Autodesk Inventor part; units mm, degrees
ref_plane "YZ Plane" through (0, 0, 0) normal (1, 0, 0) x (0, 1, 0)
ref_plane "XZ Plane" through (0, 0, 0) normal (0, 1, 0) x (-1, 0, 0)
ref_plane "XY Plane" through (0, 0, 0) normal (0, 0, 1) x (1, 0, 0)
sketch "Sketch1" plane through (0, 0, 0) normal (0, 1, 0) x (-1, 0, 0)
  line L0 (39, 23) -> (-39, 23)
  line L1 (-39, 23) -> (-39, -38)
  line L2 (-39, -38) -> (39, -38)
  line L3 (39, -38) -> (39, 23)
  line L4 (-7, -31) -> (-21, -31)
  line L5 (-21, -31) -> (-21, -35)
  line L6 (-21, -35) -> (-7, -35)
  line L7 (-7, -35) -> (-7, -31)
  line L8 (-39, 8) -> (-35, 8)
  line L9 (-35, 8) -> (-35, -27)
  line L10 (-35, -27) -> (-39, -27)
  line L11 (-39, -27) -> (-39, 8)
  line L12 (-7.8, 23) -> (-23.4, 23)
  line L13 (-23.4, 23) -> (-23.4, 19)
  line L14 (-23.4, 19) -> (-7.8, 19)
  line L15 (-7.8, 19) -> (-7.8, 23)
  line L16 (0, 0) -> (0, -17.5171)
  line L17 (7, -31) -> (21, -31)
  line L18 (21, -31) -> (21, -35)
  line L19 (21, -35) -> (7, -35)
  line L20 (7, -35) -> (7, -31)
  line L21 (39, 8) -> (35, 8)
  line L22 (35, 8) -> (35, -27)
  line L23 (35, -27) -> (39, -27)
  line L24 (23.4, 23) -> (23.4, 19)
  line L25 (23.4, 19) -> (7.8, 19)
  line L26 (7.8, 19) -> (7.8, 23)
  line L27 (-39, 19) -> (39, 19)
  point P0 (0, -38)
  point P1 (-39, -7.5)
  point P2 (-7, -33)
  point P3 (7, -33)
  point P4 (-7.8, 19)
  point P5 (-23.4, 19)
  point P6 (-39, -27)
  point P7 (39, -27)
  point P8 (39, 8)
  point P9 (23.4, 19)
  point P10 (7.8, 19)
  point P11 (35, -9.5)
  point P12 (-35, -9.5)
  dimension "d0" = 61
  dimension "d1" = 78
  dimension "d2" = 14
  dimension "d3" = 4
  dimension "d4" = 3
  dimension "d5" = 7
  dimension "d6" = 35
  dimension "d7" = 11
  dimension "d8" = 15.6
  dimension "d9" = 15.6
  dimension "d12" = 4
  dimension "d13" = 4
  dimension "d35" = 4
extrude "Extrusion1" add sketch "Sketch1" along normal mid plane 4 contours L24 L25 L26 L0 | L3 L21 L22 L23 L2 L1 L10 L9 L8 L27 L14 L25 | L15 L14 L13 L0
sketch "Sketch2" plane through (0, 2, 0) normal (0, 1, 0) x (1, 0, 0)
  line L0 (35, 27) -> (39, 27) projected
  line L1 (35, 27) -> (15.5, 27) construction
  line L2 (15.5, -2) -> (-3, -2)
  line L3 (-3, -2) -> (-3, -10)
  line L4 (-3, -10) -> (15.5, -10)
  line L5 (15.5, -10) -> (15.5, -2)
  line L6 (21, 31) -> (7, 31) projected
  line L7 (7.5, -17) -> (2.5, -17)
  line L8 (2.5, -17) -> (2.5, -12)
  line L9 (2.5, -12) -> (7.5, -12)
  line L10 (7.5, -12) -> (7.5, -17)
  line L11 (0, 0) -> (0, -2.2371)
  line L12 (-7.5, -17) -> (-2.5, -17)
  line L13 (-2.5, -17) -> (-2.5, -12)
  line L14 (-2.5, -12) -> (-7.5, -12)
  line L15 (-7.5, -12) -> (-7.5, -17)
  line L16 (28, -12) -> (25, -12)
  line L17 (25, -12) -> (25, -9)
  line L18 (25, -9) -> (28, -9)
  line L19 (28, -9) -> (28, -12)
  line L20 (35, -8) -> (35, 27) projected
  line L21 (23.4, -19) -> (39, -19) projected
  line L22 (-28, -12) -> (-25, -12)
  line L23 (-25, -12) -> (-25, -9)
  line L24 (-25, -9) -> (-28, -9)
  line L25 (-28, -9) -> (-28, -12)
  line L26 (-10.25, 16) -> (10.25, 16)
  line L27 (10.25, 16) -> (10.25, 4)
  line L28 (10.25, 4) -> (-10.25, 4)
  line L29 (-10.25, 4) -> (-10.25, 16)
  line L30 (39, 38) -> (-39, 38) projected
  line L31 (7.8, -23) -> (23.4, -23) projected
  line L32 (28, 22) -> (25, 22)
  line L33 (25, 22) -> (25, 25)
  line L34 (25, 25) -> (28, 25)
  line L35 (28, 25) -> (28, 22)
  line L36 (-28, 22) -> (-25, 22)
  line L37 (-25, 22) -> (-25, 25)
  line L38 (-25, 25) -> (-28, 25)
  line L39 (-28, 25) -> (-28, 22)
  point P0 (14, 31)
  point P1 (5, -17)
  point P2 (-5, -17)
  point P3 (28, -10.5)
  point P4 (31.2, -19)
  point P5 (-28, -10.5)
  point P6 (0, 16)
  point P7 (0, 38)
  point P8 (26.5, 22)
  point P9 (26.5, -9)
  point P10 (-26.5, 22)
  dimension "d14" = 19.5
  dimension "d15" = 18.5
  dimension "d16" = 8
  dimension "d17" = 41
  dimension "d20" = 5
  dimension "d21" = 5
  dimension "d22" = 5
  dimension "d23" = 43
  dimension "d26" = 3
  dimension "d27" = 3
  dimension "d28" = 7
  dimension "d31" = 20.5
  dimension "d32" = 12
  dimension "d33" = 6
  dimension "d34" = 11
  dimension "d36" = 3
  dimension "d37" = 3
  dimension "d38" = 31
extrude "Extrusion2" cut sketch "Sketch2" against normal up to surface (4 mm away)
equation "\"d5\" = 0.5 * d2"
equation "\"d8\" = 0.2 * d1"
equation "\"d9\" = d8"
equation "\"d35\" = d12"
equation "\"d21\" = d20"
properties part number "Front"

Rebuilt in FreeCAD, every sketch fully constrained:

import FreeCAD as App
import Part
import Sketcher

V = App.Vector
Q = App.Units.Quantity

doc = App.newDocument("Part")
body = doc.addObject("PartDesign::Body", "Body")

sketch1 = body.newObject("Sketcher::SketchObject", "Sketch")
sketch1.AttachmentSupport = (doc.getObject("XZ_Plane"), [""])
sketch1.MapMode = "FlatFace"
sketch1.addGeometry([
    Part.LineSegment(V(-23.4, 19, 0), V(-23.4, 23, 0)),
    Part.LineSegment(V(-23.4, 23, 0), V(-7.8, 23, 0)),
    Part.LineSegment(V(-7.8, 23, 0), V(-7.8, 19, 0)),
    Part.LineSegment(V(-7.8, 19, 0), V(7.8, 19, 0)),
    Part.LineSegment(V(7.8, 19, 0), V(7.8, 23, 0)),
    Part.LineSegment(V(7.8, 23, 0), V(23.4, 23, 0)),
    Part.LineSegment(V(23.4, 23, 0), V(23.4, 19, 0)),
    Part.LineSegment(V(23.4, 19, 0), V(39, 19, 0)),
    Part.LineSegment(V(39, 19, 0), V(39, 8, 0)),
    Part.LineSegment(V(39, 8, 0), V(35, 8, 0)),
    Part.LineSegment(V(35, 8, 0), V(35, -27, 0)),
    Part.LineSegment(V(35, -27, 0), V(39, -27, 0)),
    Part.LineSegment(V(39, -27, 0), V(39, -38, 0)),
    Part.LineSegment(V(39, -38, 0), V(-39, -38, 0)),
    Part.LineSegment(V(-39, -38, 0), V(-39, -27, 0)),
    Part.LineSegment(V(-39, -27, 0), V(-35, -27, 0)),
    Part.LineSegment(V(-35, -27, 0), V(-35, 8, 0)),
    Part.LineSegment(V(-35, 8, 0), V(-39, 8, 0)),
    Part.LineSegment(V(-39, 8, 0), V(-39, 19, 0)),
    Part.LineSegment(V(-39, 19, 0), V(-23.4, 19, 0)),
    Part.LineSegment(V(-7, -31, 0), V(-21, -31, 0)),
    Part.LineSegment(V(-21, -31, 0), V(-21, -35, 0)),
    Part.LineSegment(V(-21, -35, 0), V(-7, -35, 0)),
    Part.LineSegment(V(-7, -35, 0), V(-7, -31, 0)),
    Part.LineSegment(V(21, -31, 0), V(7, -31, 0)),
    Part.LineSegment(V(7, -31, 0), V(7, -35, 0)),
    Part.LineSegment(V(7, -35, 0), V(21, -35, 0)),
    Part.LineSegment(V(21, -35, 0), V(21, -31, 0)),
], False)
sketch1.addConstraint([
    Sketcher.Constraint("Coincident", 0, 2, 1, 1),
    Sketcher.Constraint("Coincident", 1, 2, 2, 1),
    Sketcher.Constraint("Coincident", 2, 2, 3, 1),
    Sketcher.Constraint("Coincident", 3, 2, 4, 1),
    Sketcher.Constraint("Coincident", 4, 2, 5, 1),
    Sketcher.Constraint("Coincident", 5, 2, 6, 1),
    Sketcher.Constraint("Coincident", 6, 2, 7, 1),
    Sketcher.Constraint("Coincident", 7, 2, 8, 1),
    Sketcher.Constraint("Coincident", 8, 2, 9, 1),
    Sketcher.Constraint("Coincident", 9, 2, 10, 1),
    Sketcher.Constraint("Coincident", 10, 2, 11, 1),
    Sketcher.Constraint("Coincident", 11, 2, 12, 1),
    Sketcher.Constraint("Coincident", 12, 2, 13, 1),
    Sketcher.Constraint("Coincident", 13, 2, 14, 1),
    Sketcher.Constraint("Coincident", 14, 2, 15, 1),
    Sketcher.Constraint("Coincident", 15, 2, 16, 1),
    Sketcher.Constraint("Coincident", 16, 2, 17, 1),
    Sketcher.Constraint("Coincident", 17, 2, 18, 1),
    Sketcher.Constraint("Coincident", 18, 2, 19, 1),
    Sketcher.Constraint("Coincident", 19, 2, 0, 1),
    Sketcher.Constraint("Coincident", 20, 2, 21, 1),
    Sketcher.Constraint("Coincident", 21, 2, 22, 1),
    Sketcher.Constraint("Coincident", 22, 2, 23, 1),
    Sketcher.Constraint("Coincident", 23, 2, 20, 1),
    Sketcher.Constraint("Coincident", 24, 2, 25, 1),
    Sketcher.Constraint("Coincident", 25, 2, 26, 1),
    Sketcher.Constraint("Coincident", 26, 2, 27, 1),
    Sketcher.Constraint("Coincident", 27, 2, 24, 1),
    Sketcher.Constraint("Vertical", 0),
    Sketcher.Constraint("Horizontal", 1),
    Sketcher.Constraint("Vertical", 2),
    Sketcher.Constraint("Horizontal", 3),
    Sketcher.Constraint("Vertical", 4),
    Sketcher.Constraint("Horizontal", 5),
    Sketcher.Constraint("Vertical", 6),
    Sketcher.Constraint("Horizontal", 7),
    Sketcher.Constraint("Vertical", 8),
    Sketcher.Constraint("Horizontal", 9),
    Sketcher.Constraint("Vertical", 10),
    Sketcher.Constraint("Horizontal", 11),
    Sketcher.Constraint("Vertical", 12),
    Sketcher.Constraint("Horizontal", 13),
    Sketcher.Constraint("Vertical", 14),
    Sketcher.Constraint("Horizontal", 15),
    Sketcher.Constraint("Vertical", 16),
    Sketcher.Constraint("Horizontal", 17),
    Sketcher.Constraint("Vertical", 18),
    Sketcher.Constraint("Horizontal", 19),
    Sketcher.Constraint("Horizontal", 20),
    Sketcher.Constraint("Vertical", 21),
    Sketcher.Constraint("Horizontal", 22),
    Sketcher.Constraint("Vertical", 23),
    Sketcher.Constraint("Horizontal", 24),
    Sketcher.Constraint("Vertical", 25),
    Sketcher.Constraint("Horizontal", 26),
    Sketcher.Constraint("Vertical", 27),
    Sketcher.Constraint("Symmetric", 1, 2, 4, 2, -2),
    Sketcher.Constraint("Symmetric", 11, 2, 14, 2, -2),
    Sketcher.Constraint("Symmetric", 9, 2, 16, 2, -2),
    Sketcher.Constraint("Symmetric", 7, 2, 18, 2, -2),
    Sketcher.Constraint("Symmetric", 23, 2, 24, 2, -2),
    Sketcher.Constraint("Symmetric", 21, 2, 26, 2, -2),
    Sketcher.Constraint("Horizontal", 3, 2, 6, 2),
    Sketcher.Constraint("Vertical", 8, 2, 11, 2),
    Sketcher.Constraint("Equal", 1, 3),
    Sketcher.Constraint("Equal", 3, 5),
    Sketcher.Constraint("Equal", 5, 7),
    Sketcher.Constraint("Equal", 17, 0),
    Sketcher.Constraint("Equal", 8, 12),
    Sketcher.Constraint("Equal", 6, 21),
    Sketcher.Constraint("DistanceX", 9, 2, 9, 1, Q("4 mm")),
    Sketcher.Constraint("DistanceX", 13, 2, 13, 1, Q("78 mm")),
    Sketcher.Constraint("DistanceX", 20, 2, 20, 1, Q("14 mm")),
    Sketcher.Constraint("DistanceY", 8, 2, 8, 1, Q("11 mm")),
    Sketcher.Constraint("DistanceY", 10, 2, 10, 1, Q("35 mm")),
    Sketcher.Constraint("DistanceY", 21, 2, -1, 1, Q("35 mm")),
    Sketcher.Constraint("DistanceX", 22, 2, -1, 1, Q("7 mm")),
    Sketcher.Constraint("DistanceY", 20, 2, 15, 2, Q("4 mm")),
])
pad1 = body.newObject("PartDesign::Pad", "Pad")
pad1.Profile = sketch1
pad1.Length = 4
pad1.Midplane = True

sketch2 = body.newObject("Sketcher::SketchObject", "Sketch001")
sketch2.AttachmentSupport = (doc.getObject("XZ_Plane"), [""])
sketch2.MapMode = "FlatFace"
sketch2.AttachmentOffset = App.Placement(V(0, 0, -2), App.Rotation())
sketch2.addGeometry([
    Part.LineSegment(V(15.5, 10, 0), V(15.5, 2, 0)),
    Part.LineSegment(V(15.5, 2, 0), V(-3, 2, 0)),
    Part.LineSegment(V(-3, 2, 0), V(-3, 10, 0)),
    Part.LineSegment(V(-3, 10, 0), V(15.5, 10, 0)),
    Part.LineSegment(V(2.5, 17, 0), V(7.5, 17, 0)),
    Part.LineSegment(V(7.5, 17, 0), V(7.5, 12, 0)),
    Part.LineSegment(V(7.5, 12, 0), V(2.5, 12, 0)),
    Part.LineSegment(V(2.5, 12, 0), V(2.5, 17, 0)),
    Part.LineSegment(V(-7.5, 12, 0), V(-7.5, 17, 0)),
    Part.LineSegment(V(-7.5, 17, 0), V(-2.5, 17, 0)),
    Part.LineSegment(V(-2.5, 17, 0), V(-2.5, 12, 0)),
    Part.LineSegment(V(-2.5, 12, 0), V(-7.5, 12, 0)),
    Part.LineSegment(V(25, 12, 0), V(28, 12, 0)),
    Part.LineSegment(V(28, 12, 0), V(28, 9, 0)),
    Part.LineSegment(V(28, 9, 0), V(25, 9, 0)),
    Part.LineSegment(V(25, 9, 0), V(25, 12, 0)),
    Part.LineSegment(V(-28, 9, 0), V(-28, 12, 0)),
    Part.LineSegment(V(-28, 12, 0), V(-25, 12, 0)),
    Part.LineSegment(V(-25, 12, 0), V(-25, 9, 0)),
    Part.LineSegment(V(-25, 9, 0), V(-28, 9, 0)),
    Part.LineSegment(V(10.2, -16, 0), V(-10.2, -16, 0)),
    Part.LineSegment(V(-10.2, -16, 0), V(-10.2, -4, 0)),
    Part.LineSegment(V(-10.2, -4, 0), V(10.2, -4, 0)),
    Part.LineSegment(V(10.2, -4, 0), V(10.2, -16, 0)),
    Part.LineSegment(V(25, -22, 0), V(28, -22, 0)),
    Part.LineSegment(V(28, -22, 0), V(28, -25, 0)),
    Part.LineSegment(V(28, -25, 0), V(25, -25, 0)),
    Part.LineSegment(V(25, -25, 0), V(25, -22, 0)),
    Part.LineSegment(V(-28, -25, 0), V(-28, -22, 0)),
    Part.LineSegment(V(-28, -22, 0), V(-25, -22, 0)),
    Part.LineSegment(V(-25, -22, 0), V(-25, -25, 0)),
    Part.LineSegment(V(-25, -25, 0), V(-28, -25, 0)),
], False)
sketch2.addConstraint([
    Sketcher.Constraint("Coincident", 0, 2, 1, 1),
    Sketcher.Constraint("Coincident", 1, 2, 2, 1),
    Sketcher.Constraint("Coincident", 2, 2, 3, 1),
    Sketcher.Constraint("Coincident", 3, 2, 0, 1),
    Sketcher.Constraint("Coincident", 4, 2, 5, 1),
    Sketcher.Constraint("Coincident", 5, 2, 6, 1),
    Sketcher.Constraint("Coincident", 6, 2, 7, 1),
    Sketcher.Constraint("Coincident", 7, 2, 4, 1),
    Sketcher.Constraint("Coincident", 8, 2, 9, 1),
    Sketcher.Constraint("Coincident", 9, 2, 10, 1),
    Sketcher.Constraint("Coincident", 10, 2, 11, 1),
    Sketcher.Constraint("Coincident", 11, 2, 8, 1),
    Sketcher.Constraint("Coincident", 12, 2, 13, 1),
    Sketcher.Constraint("Coincident", 13, 2, 14, 1),
    Sketcher.Constraint("Coincident", 14, 2, 15, 1),
    Sketcher.Constraint("Coincident", 15, 2, 12, 1),
    Sketcher.Constraint("Coincident", 16, 2, 17, 1),
    Sketcher.Constraint("Coincident", 17, 2, 18, 1),
    Sketcher.Constraint("Coincident", 18, 2, 19, 1),
    Sketcher.Constraint("Coincident", 19, 2, 16, 1),
    Sketcher.Constraint("Coincident", 20, 2, 21, 1),
    Sketcher.Constraint("Coincident", 21, 2, 22, 1),
    Sketcher.Constraint("Coincident", 22, 2, 23, 1),
    Sketcher.Constraint("Coincident", 23, 2, 20, 1),
    Sketcher.Constraint("Coincident", 24, 2, 25, 1),
    Sketcher.Constraint("Coincident", 25, 2, 26, 1),
    Sketcher.Constraint("Coincident", 26, 2, 27, 1),
    Sketcher.Constraint("Coincident", 27, 2, 24, 1),
    Sketcher.Constraint("Coincident", 28, 2, 29, 1),
    Sketcher.Constraint("Coincident", 29, 2, 30, 1),
    Sketcher.Constraint("Coincident", 30, 2, 31, 1),
    Sketcher.Constraint("Coincident", 31, 2, 28, 1),
    Sketcher.Constraint("Vertical", 0),
    Sketcher.Constraint("Horizontal", 1),
    Sketcher.Constraint("Vertical", 2),
    Sketcher.Constraint("Horizontal", 3),
    Sketcher.Constraint("Horizontal", 4),
    Sketcher.Constraint("Vertical", 5),
    Sketcher.Constraint("Horizontal", 6),
    Sketcher.Constraint("Vertical", 7),
    Sketcher.Constraint("Vertical", 8),
    Sketcher.Constraint("Horizontal", 9),
    Sketcher.Constraint("Vertical", 10),
    Sketcher.Constraint("Horizontal", 11),
    Sketcher.Constraint("Horizontal", 12),
    Sketcher.Constraint("Vertical", 13),
    Sketcher.Constraint("Horizontal", 14),
    Sketcher.Constraint("Vertical", 15),
    Sketcher.Constraint("Vertical", 16),
    Sketcher.Constraint("Horizontal", 17),
    Sketcher.Constraint("Vertical", 18),
    Sketcher.Constraint("Horizontal", 19),
    Sketcher.Constraint("Horizontal", 20),
    Sketcher.Constraint("Vertical", 21),
    Sketcher.Constraint("Horizontal", 22),
    Sketcher.Constraint("Vertical", 23),
    Sketcher.Constraint("Horizontal", 24),
    Sketcher.Constraint("Vertical", 25),
    Sketcher.Constraint("Horizontal", 26),
    Sketcher.Constraint("Vertical", 27),
    Sketcher.Constraint("Vertical", 28),
    Sketcher.Constraint("Horizontal", 29),
    Sketcher.Constraint("Vertical", 30),
    Sketcher.Constraint("Horizontal", 31),
    Sketcher.Constraint("Symmetric", 4, 2, 8, 2, -2),
    Sketcher.Constraint("Symmetric", 6, 2, 10, 2, -2),
    Sketcher.Constraint("Symmetric", 12, 2, 16, 2, -2),
    Sketcher.Constraint("Symmetric", 14, 2, 18, 2, -2),
    Sketcher.Constraint("Symmetric", 24, 2, 28, 2, -2),
    Sketcher.Constraint("Symmetric", 26, 2, 30, 2, -2),
    Sketcher.Constraint("Horizontal", 11, 2, 12, 2),
    Sketcher.Constraint("Vertical", 13, 2, 24, 2),
    Sketcher.Constraint("Vertical", 15, 2, 26, 2),
    Sketcher.Constraint("Equal", 11, 5),
    Sketcher.Constraint("Equal", 31, 13),
    Sketcher.Constraint("Equal", 18, 25),
    Sketcher.Constraint("DistanceX", 4, 1, 4, 2, Q("5 mm")),
    Sketcher.Constraint("DistanceX", 12, 1, 12, 2, Q("3 mm")),
    Sketcher.Constraint("DistanceY", 0, 2, 0, 1, Q("8 mm")),
    Sketcher.Constraint("DistanceY", 21, 1, 21, 2, Q("12 mm")),
    Sketcher.Constraint("DistanceX", 1, 2, 1, 1, Q("18.5 mm")),
    Sketcher.Constraint("DistanceX", 20, 2, 20, 1, Q("20.5 mm")),
    Sketcher.Constraint("DistanceX", 1, 2, -1, 1, Q("3 mm")),
    Sketcher.Constraint("DistanceY", -1, 1, 5, 2, Q("12 mm")),
    Sketcher.Constraint("DistanceX", 4, 2, 3, 2, Q("8 mm")),
    Sketcher.Constraint("DistanceY", 3, 2, 4, 2, Q("7 mm")),
    Sketcher.Constraint("DistanceY", 21, 2, 1, 2, Q("6 mm")),
    Sketcher.Constraint("DistanceY", 24, 2, 23, 2, Q("6 mm")),
    Sketcher.Constraint("DistanceX", 5, 2, 12, 2, Q("20.5 mm")),
    Sketcher.Constraint("DistanceX", 20, 2, -1, 1, Q("10.25 mm")),
])
pocket1 = body.newObject("PartDesign::Pocket", "Pocket")
pocket1.Profile = sketch2
pocket1.Length = 4
pocket1.Reversed = True

doc.recompute()
